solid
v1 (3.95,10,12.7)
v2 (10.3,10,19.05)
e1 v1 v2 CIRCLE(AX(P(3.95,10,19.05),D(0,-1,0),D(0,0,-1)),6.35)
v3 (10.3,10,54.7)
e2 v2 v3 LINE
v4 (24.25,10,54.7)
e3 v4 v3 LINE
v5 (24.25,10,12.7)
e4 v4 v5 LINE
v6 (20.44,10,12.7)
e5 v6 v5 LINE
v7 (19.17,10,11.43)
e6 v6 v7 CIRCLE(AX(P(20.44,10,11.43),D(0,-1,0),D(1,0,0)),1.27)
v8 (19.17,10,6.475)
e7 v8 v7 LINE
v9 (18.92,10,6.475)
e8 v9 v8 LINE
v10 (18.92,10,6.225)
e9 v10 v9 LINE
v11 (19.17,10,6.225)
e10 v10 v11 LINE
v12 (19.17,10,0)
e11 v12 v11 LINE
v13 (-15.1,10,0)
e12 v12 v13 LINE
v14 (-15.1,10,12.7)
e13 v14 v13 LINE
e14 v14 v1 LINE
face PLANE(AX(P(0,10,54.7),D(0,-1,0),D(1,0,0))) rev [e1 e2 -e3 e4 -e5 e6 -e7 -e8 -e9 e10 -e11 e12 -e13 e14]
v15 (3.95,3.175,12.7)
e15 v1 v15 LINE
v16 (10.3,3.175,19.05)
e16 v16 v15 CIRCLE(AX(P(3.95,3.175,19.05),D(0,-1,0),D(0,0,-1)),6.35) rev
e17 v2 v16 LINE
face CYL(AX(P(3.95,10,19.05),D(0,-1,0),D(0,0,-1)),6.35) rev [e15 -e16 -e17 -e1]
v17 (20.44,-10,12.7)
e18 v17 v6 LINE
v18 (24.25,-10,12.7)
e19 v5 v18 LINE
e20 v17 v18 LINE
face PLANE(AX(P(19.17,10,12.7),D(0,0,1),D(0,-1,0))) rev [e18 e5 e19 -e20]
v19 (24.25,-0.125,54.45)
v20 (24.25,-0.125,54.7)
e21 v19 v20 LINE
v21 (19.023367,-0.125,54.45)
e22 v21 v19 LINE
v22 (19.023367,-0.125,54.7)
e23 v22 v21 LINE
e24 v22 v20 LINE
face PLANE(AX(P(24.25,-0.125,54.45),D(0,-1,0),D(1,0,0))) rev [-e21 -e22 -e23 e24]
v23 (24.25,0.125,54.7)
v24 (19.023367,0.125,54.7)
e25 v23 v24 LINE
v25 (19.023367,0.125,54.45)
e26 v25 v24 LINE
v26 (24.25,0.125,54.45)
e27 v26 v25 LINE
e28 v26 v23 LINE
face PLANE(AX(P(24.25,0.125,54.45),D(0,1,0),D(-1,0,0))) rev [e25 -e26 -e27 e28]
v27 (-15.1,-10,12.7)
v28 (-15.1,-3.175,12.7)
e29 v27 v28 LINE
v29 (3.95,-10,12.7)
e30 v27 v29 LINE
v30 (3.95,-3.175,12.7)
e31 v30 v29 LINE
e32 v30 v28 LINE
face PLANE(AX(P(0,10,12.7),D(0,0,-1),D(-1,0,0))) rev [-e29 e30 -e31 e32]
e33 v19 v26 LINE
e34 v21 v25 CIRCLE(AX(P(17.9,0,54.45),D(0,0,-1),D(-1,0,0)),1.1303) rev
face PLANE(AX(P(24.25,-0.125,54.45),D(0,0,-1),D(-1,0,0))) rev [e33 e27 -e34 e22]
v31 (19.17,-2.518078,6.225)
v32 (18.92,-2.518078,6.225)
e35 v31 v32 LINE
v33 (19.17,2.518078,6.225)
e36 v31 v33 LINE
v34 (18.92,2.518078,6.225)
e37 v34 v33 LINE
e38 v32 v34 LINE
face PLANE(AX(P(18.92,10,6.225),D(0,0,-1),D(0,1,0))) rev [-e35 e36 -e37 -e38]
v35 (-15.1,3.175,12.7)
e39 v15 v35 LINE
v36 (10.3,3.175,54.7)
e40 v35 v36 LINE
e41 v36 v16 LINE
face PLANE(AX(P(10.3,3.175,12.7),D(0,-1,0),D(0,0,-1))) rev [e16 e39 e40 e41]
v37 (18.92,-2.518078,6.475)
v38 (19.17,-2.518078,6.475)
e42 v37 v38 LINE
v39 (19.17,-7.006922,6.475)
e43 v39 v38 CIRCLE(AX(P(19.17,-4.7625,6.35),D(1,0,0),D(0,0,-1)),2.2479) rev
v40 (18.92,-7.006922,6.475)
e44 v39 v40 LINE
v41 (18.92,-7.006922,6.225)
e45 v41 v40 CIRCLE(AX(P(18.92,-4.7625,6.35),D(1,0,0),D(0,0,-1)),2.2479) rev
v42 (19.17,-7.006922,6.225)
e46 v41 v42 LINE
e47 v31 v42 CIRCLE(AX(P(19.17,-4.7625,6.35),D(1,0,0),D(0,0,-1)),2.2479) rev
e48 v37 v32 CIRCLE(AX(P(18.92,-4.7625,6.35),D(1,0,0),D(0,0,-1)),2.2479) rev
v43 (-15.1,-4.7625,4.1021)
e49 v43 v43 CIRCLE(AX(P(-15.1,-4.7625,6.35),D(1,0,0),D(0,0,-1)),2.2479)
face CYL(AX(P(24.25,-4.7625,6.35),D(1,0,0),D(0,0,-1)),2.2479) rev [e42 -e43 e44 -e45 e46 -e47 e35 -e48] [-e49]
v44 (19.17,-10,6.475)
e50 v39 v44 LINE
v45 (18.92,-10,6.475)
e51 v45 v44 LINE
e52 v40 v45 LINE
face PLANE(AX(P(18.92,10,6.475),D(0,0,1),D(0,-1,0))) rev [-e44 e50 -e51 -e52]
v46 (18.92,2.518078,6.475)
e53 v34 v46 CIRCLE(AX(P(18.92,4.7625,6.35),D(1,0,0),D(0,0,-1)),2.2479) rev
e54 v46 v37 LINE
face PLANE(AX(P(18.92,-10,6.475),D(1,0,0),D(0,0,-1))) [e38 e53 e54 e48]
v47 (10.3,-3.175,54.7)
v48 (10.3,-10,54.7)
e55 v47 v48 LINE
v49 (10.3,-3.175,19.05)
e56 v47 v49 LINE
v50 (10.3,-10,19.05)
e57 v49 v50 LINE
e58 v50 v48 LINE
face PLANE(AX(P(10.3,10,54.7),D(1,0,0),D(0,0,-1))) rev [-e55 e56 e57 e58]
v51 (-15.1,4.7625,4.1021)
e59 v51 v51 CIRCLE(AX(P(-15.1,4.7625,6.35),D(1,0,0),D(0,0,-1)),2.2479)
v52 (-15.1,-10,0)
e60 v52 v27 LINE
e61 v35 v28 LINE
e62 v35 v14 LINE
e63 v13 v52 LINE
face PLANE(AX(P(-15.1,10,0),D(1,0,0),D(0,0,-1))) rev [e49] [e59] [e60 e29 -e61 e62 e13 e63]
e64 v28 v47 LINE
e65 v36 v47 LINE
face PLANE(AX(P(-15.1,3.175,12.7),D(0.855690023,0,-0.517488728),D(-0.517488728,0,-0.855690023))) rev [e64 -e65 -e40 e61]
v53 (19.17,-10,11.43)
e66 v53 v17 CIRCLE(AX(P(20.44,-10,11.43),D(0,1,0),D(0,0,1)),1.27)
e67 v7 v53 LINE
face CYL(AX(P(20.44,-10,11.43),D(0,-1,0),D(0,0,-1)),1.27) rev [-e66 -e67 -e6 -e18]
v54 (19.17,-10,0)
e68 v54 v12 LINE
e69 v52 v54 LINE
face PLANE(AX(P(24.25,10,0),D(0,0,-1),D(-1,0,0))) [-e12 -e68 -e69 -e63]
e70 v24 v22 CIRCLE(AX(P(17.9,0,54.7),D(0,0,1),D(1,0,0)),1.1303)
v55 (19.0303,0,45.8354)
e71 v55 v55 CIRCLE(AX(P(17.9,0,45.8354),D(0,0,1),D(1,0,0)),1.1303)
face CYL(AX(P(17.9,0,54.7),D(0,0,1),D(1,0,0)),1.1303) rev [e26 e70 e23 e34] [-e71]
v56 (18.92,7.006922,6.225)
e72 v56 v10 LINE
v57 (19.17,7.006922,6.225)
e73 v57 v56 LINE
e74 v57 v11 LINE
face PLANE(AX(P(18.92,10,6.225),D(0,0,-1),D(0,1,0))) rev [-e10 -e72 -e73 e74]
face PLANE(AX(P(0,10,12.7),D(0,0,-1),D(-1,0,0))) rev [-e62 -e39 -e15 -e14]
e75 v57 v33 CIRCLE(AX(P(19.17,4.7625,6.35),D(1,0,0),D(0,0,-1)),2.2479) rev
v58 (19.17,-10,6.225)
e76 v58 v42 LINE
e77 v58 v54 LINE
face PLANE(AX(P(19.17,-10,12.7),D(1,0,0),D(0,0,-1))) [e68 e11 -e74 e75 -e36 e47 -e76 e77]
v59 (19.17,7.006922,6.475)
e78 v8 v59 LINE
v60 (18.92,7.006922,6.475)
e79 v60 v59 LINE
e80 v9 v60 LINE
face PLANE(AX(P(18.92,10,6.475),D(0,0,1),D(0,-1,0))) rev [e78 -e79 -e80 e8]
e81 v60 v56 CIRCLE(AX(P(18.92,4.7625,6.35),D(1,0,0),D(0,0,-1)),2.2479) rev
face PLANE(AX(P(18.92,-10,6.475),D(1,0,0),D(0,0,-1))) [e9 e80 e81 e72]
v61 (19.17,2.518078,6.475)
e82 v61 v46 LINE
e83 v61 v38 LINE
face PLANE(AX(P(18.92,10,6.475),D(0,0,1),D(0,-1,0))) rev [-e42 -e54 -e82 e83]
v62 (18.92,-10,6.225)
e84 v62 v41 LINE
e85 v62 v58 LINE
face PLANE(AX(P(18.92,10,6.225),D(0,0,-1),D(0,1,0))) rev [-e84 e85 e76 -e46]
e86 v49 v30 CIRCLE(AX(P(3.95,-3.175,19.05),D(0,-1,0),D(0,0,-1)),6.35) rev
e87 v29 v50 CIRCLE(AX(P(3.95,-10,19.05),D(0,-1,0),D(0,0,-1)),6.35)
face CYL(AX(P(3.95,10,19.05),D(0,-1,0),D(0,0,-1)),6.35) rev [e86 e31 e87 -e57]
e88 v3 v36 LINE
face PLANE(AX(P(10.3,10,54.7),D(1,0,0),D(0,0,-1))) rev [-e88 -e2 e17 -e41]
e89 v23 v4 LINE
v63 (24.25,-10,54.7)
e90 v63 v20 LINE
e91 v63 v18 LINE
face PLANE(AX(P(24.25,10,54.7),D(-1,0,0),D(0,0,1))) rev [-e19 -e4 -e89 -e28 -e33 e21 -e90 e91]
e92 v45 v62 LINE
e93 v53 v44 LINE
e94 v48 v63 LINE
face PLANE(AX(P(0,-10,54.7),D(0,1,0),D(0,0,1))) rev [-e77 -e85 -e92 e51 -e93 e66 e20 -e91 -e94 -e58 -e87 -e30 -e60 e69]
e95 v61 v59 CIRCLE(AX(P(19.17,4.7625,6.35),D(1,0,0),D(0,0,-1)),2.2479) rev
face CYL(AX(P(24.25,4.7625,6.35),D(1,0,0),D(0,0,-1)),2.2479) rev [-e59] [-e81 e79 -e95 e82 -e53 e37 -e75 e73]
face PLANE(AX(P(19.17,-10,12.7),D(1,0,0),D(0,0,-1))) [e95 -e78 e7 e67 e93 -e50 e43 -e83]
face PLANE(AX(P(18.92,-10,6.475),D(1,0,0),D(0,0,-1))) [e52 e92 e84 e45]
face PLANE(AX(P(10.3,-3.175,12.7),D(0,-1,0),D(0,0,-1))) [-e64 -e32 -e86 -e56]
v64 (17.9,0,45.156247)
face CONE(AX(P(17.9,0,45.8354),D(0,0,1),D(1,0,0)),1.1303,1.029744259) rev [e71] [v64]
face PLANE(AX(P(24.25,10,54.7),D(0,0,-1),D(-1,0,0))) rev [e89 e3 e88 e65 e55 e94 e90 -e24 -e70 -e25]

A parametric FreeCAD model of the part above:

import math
import FreeCAD as App
import Part
import Sketcher
Q = App.Units.Quantity


def edges_at(feature, points):
    """Names of the edges that pass closest to the given points."""
    edges = feature.Shape.Edges
    near = lambda p: min(range(len(edges)), key=lambda i: edges[i].distToShape(Part.Vertex(*p))[0])
    return sorted({f"Edge{near(p) + 1}" for p in points})

doc = App.newDocument("Part")
body = doc.addObject("PartDesign::Body", "Body")

# Sketch on XY plane
sketch1 = body.newObject("Sketcher::SketchObject", "Sketch")
sketch1.AttachmentSupport = (doc.getObject("XY_Plane"), [""])
sketch1.MapMode = "FlatFace"
sketch1.addGeometry(Part.LineSegment(App.Vector(0, 10, 0), App.Vector(0, -10, 0)), False)
sketch1.addGeometry(Part.LineSegment(App.Vector(0, -10, 0), App.Vector(24, -10, 0)), False)
sketch1.addGeometry(Part.LineSegment(App.Vector(24, -10, 0), App.Vector(24, 10, 0)), False)
sketch1.addGeometry(Part.LineSegment(App.Vector(24, 10, 0), App.Vector(0, 10, 0)), False)
sketch1.addConstraint(Sketcher.Constraint("Coincident", 0, 2, 1, 1))
sketch1.addConstraint(Sketcher.Constraint("Coincident", 1, 2, 2, 1))
sketch1.addConstraint(Sketcher.Constraint("Coincident", 2, 2, 3, 1))
sketch1.addConstraint(Sketcher.Constraint("Coincident", 3, 2, 0, 1))
sketch1.addConstraint(Sketcher.Constraint("Vertical", 0))
sketch1.addConstraint(Sketcher.Constraint("Horizontal", 1))
sketch1.addConstraint(Sketcher.Constraint("Vertical", 2))
sketch1.addConstraint(Sketcher.Constraint("Horizontal", 3))
sketch1.addConstraint(Sketcher.Constraint("Symmetric", 0, 2, 3, 2, -1, 1))
sketch1.addConstraint(Sketcher.Constraint("DistanceX", 1, 1, 1, 2, Q("24.25 mm")))
sketch1.addConstraint(Sketcher.Constraint("DistanceY", 0, 2, 0, 1, Q("20 mm")))
pad1 = body.newObject("PartDesign::Pad", "Pad")
pad1.Profile = sketch1
pad1.Length = 54.7

# Sketch on XZ plane
sketch2 = body.newObject("Sketcher::SketchObject", "Sketch001")
sketch2.AttachmentSupport = (doc.getObject("XZ_Plane"), [""])
sketch2.MapMode = "FlatFace"
sketch2.AttachmentOffset = App.Placement(App.Vector(0, 0, 10), App.Rotation())
sketch2.addGeometry(Part.LineSegment(App.Vector(0, 12.7, 0), App.Vector(4, 12.7, 0)), False)
sketch2.addGeometry(Part.ArcOfCircle(Part.Circle(App.Vector(4, 19, 0), App.Vector(0, 0, 1), 6.3), math.radians(-90), math.radians(0)), False)
sketch2.addGeometry(Part.LineSegment(App.Vector(10.3, 19.1, 0), App.Vector(10.3, 54.7, 0)), False)
sketch2.addGeometry(Part.LineSegment(App.Vector(10.3, 54.7, 0), App.Vector(0, 54.7, 0)), False)
sketch2.addGeometry(Part.LineSegment(App.Vector(0, 54.7, 0), App.Vector(0, 12.7, 0)), False)
sketch2.addConstraint(Sketcher.Constraint("Tangent", 0, 2, 1, 1))
sketch2.addConstraint(Sketcher.Constraint("Tangent", 1, 2, 2, 1))
sketch2.addConstraint(Sketcher.Constraint("Coincident", 2, 2, 3, 1))
sketch2.addConstraint(Sketcher.Constraint("Coincident", 3, 2, 4, 1))
sketch2.addConstraint(Sketcher.Constraint("Coincident", 4, 2, 0, 1))
sketch2.addConstraint(Sketcher.Constraint("Horizontal", 0))
sketch2.addConstraint(Sketcher.Constraint("Vertical", 2))
sketch2.addConstraint(Sketcher.Constraint("Horizontal", 3))
sketch2.addConstraint(Sketcher.Constraint("Vertical", 4))
sketch2.addConstraint(Sketcher.Constraint("PointOnObject", 3, 2, -2))
sketch2.addConstraint(Sketcher.Constraint("Radius", 1, Q("0.25 in")))
sketch2.addConstraint(Sketcher.Constraint("DistanceY", -1, 1, 0, 2, Q("0.5 in")))
sketch2.addConstraint(Sketcher.Constraint("DistanceX", 0, 1, 0, 2, Q("3.95 mm")))
sketch2.addConstraint(Sketcher.Constraint("DistanceY", 2, 1, 2, 2, Q("35.65 mm")))
pocket1 = body.newObject("PartDesign::Pocket", "Pocket")
pocket1.Profile = sketch2
pocket1.Type = "ThroughAll"

# Sketch on YZ plane
sketch3 = body.newObject("Sketcher::SketchObject", "Sketch002")
sketch3.AttachmentSupport = (doc.getObject("YZ_Plane"), [""])
sketch3.MapMode = "FlatFace"
sketch3.addGeometry(Part.LineSegment(App.Vector(10, 0, 0), App.Vector(-10, 0, 0)), False)
sketch3.addGeometry(Part.LineSegment(App.Vector(-10, 0, 0), App.Vector(-10, 13, 0)), False)
sketch3.addGeometry(Part.LineSegment(App.Vector(-10, 13, 0), App.Vector(10, 13, 0)), False)
sketch3.addGeometry(Part.LineSegment(App.Vector(10, 13, 0), App.Vector(10, 0, 0)), False)
sketch3.addConstraint(Sketcher.Constraint("Coincident", 0, 2, 1, 1))
sketch3.addConstraint(Sketcher.Constraint("Coincident", 1, 2, 2, 1))
sketch3.addConstraint(Sketcher.Constraint("Coincident", 2, 2, 3, 1))
sketch3.addConstraint(Sketcher.Constraint("Coincident", 3, 2, 0, 1))
sketch3.addConstraint(Sketcher.Constraint("Horizontal", 0))
sketch3.addConstraint(Sketcher.Constraint("Vertical", 1))
sketch3.addConstraint(Sketcher.Constraint("Horizontal", 2))
sketch3.addConstraint(Sketcher.Constraint("Vertical", 3))
sketch3.addConstraint(Sketcher.Constraint("Symmetric", 0, 2, 3, 2, -1, 1))
sketch3.addConstraint(Sketcher.Constraint("DistanceY", 1, 1, 1, 2, Q("0.5 in")))
sketch3.addConstraint(Sketcher.Constraint("DistanceX", 0, 2, 0, 1, Q("20 mm")))
pad2 = body.newObject("PartDesign::Pad", "Pad001")
pad2.Profile = sketch3
pad2.Length = 15.1
pad2.Reversed = True

# Sketch on YZ plane
sketch4 = body.newObject("Sketcher::SketchObject", "Sketch003")
sketch4.AttachmentSupport = (doc.getObject("YZ_Plane"), [""])
sketch4.MapMode = "FlatFace"
sketch4.AttachmentOffset = App.Placement(App.Vector(0, 0, 24.25), App.Rotation())
sketch4.addGeometry(Part.Circle(App.Vector(4.8, 6.3, 0), App.Vector(0, 0, 1), 2.2), False)
sketch4.addGeometry(Part.Circle(App.Vector(-4.8, 6.3, 0), App.Vector(0, 0, 1), 2.2), False)
sketch4.addConstraint(Sketcher.Constraint("Equal", 0, 1))
sketch4.addConstraint(Sketcher.Constraint("Symmetric", 0, 3, 1, 3, -2))
sketch4.addConstraint(Sketcher.Constraint("Diameter", 0, Q("0.177 in")))
sketch4.addConstraint(Sketcher.Constraint("DistanceY", -1, 1, 0, 3, Q("0.25 in")))
sketch4.addConstraint(Sketcher.Constraint("DistanceX", -1, 1, 0, 3, Q("0.1875 in")))
doc.recompute()
hole = body.newObject("PartDesign::Hole", "Hole")
hole.Profile = sketch4
hole.ThreadType = "None"
hole.Diameter = Q("0.177 in")
hole.DepthType = "ThroughAll"

# Sketch on XY plane
sketch5 = body.newObject("Sketcher::SketchObject", "Sketch004")
sketch5.AttachmentSupport = (doc.getObject("XY_Plane"), [""])
sketch5.MapMode = "FlatFace"
sketch5.AttachmentOffset = App.Placement(App.Vector(0, 0, 54.7), App.Rotation())
sketch5.addGeometry(Part.Circle(App.Vector(17.9, 0, 0), App.Vector(0, 0, 1), 1.1), False)
sketch5.addConstraint(Sketcher.Constraint("PointOnObject", 0, 3, -1))
sketch5.addConstraint(Sketcher.Constraint("Diameter", 0, Q("0.089 in")))
sketch5.addConstraint(Sketcher.Constraint("DistanceX", -1, 1, 0, 3, Q("17.9 mm")))
doc.recompute()
hole2 = body.newObject("PartDesign::Hole", "Hole001")
hole2.Profile = sketch5
hole2.ThreadType = "None"
hole2.Diameter = Q("0.089 in")
hole2.DepthType = "Dimension"
hole2.Depth = Q("0.349 in")
hole2.DrillPoint = "Angled"
hole2.DrillPointAngle = 118

# Sketch on YZ plane
sketch6 = body.newObject("Sketcher::SketchObject", "Sketch005")
sketch6.AttachmentSupport = (doc.getObject("YZ_Plane"), [""])
sketch6.MapMode = "FlatFace"
sketch6.AttachmentOffset = App.Placement(App.Vector(0, 0, 24.25), App.Rotation())
sketch6.addGeometry(Part.LineSegment(App.Vector(10, 13, 0), App.Vector(-10, 13, 0)), False)
sketch6.addGeometry(Part.LineSegment(App.Vector(-10, 13, 0), App.Vector(-10, 0, 0)), False)
sketch6.addGeometry(Part.LineSegment(App.Vector(-10, 0, 0), App.Vector(10, 0, 0)), False)
sketch6.addGeometry(Part.LineSegment(App.Vector(10, 0, 0), App.Vector(10, 13, 0)), False)
sketch6.addConstraint(Sketcher.Constraint("Coincident", 0, 2, 1, 1))
sketch6.addConstraint(Sketcher.Constraint("Coincident", 1, 2, 2, 1))
sketch6.addConstraint(Sketcher.Constraint("Coincident", 2, 2, 3, 1))
sketch6.addConstraint(Sketcher.Constraint("Coincident", 3, 2, 0, 1))
sketch6.addConstraint(Sketcher.Constraint("Horizontal", 0))
sketch6.addConstraint(Sketcher.Constraint("Vertical", 1))
sketch6.addConstraint(Sketcher.Constraint("Horizontal", 2))
sketch6.addConstraint(Sketcher.Constraint("Vertical", 3))
sketch6.addConstraint(Sketcher.Constraint("Symmetric", 1, 2, 2, 2, -1, 1))
sketch6.addConstraint(Sketcher.Constraint("DistanceY", 1, 2, 1, 1, Q("0.5 in")))
sketch6.addConstraint(Sketcher.Constraint("DistanceX", 0, 2, 0, 1, Q("20 mm")))
pocket2 = body.newObject("PartDesign::Pocket", "Pocket001")
pocket2.Profile = sketch6
pocket2.Length = Q("0.2 in")
doc.recompute()

fillet = body.newObject("PartDesign::Fillet", "Fillet")
fillet.Base = (pocket2, edges_at(pocket2, [(19.17, 0, 12.7)]))
fillet.Radius = Q("0.05 in")

# Sketch on YZ plane
sketch7 = body.newObject("Sketcher::SketchObject", "Sketch006")
sketch7.AttachmentSupport = (doc.getObject("YZ_Plane"), [""])
sketch7.MapMode = "FlatFace"
sketch7.AttachmentOffset = App.Placement(App.Vector(0, 0, 19.17), App.Rotation())
sketch7.addGeometry(Part.LineSegment(App.Vector(10, 6.47, 0), App.Vector(-10, 6.47, 0)), False)
sketch7.addGeometry(Part.LineSegment(App.Vector(-10, 6.47, 0), App.Vector(-10, 6.22, 0)), False)
sketch7.addGeometry(Part.LineSegment(App.Vector(-10, 6.22, 0), App.Vector(10, 6.22, 0)), False)
sketch7.addGeometry(Part.LineSegment(App.Vector(10, 6.22, 0), App.Vector(10, 6.47, 0)), False)
sketch7.addConstraint(Sketcher.Constraint("Coincident", 0, 2, 1, 1))
sketch7.addConstraint(Sketcher.Constraint("Coincident", 1, 2, 2, 1))
sketch7.addConstraint(Sketcher.Constraint("Coincident", 2, 2, 3, 1))
sketch7.addConstraint(Sketcher.Constraint("Coincident", 3, 2, 0, 1))
sketch7.addConstraint(Sketcher.Constraint("Horizontal", 0))
sketch7.addConstraint(Sketcher.Constraint("Vertical", 1))
sketch7.addConstraint(Sketcher.Constraint("Horizontal", 2))
sketch7.addConstraint(Sketcher.Constraint("Vertical", 3))
sketch7.addConstraint(Sketcher.Constraint("DistanceX", 0, 2, 0, 1, Q("20 mm")))
sketch7.addConstraint(Sketcher.Constraint("DistanceY", 1, 2, 1, 1, Q("0.25 mm")))
sketch7.addConstraint(Sketcher.Constraint("DistanceX", 0, 2, -1, 1, Q("10 mm")))
sketch7.addConstraint(Sketcher.Constraint("DistanceY", -1, 1, 0, 2, Q("6.475 mm")))
pocket3 = body.newObject("PartDesign::Pocket", "Pocket002")
pocket3.Profile = sketch7
pocket3.Length = 0.25

# Sketch on XZ plane
sketch8 = body.newObject("Sketcher::SketchObject", "Sketch007")
sketch8.AttachmentSupport = (doc.getObject("XZ_Plane"), [""])
sketch8.MapMode = "FlatFace"
sketch8.addGeometry(Part.LineSegment(App.Vector(-15, 13, 0), App.Vector(10, 55, 0)), False)
sketch8.addGeometry(Part.LineSegment(App.Vector(10, 55, 0), App.Vector(10, 13, 0)), False)
sketch8.addGeometry(Part.LineSegment(App.Vector(10, 13, 0), App.Vector(-15, 13, 0)), False)
sketch8.addConstraint(Sketcher.Constraint("Coincident", 0, 2, 1, 1))
sketch8.addConstraint(Sketcher.Constraint("Coincident", 1, 2, 2, 1))
sketch8.addConstraint(Sketcher.Constraint("Coincident", 2, 2, 0, 1))
sketch8.addConstraint(Sketcher.Constraint("Vertical", 1))
sketch8.addConstraint(Sketcher.Constraint("Horizontal", 2))
sketch8.addConstraint(Sketcher.Constraint("DistanceX", 2, 2, 2, 1, Q("1 in")))
sketch8.addConstraint(Sketcher.Constraint("DistanceY", -1, 1, 1, 2, Q("0.5 in")))
sketch8.addConstraint(Sketcher.Constraint("DistanceY", 1, 2, 1, 1, Q("42 mm")))
sketch8.addConstraint(Sketcher.Constraint("DistanceX", -1, 1, 0, 2, Q("10.3 mm")))
pad3 = body.newObject("PartDesign::Pad", "Pad002")
pad3.Profile = sketch8
pad3.Length = Q("0.25 in")
pad3.Midplane = True

# Sketch on XY plane
sketch9 = body.newObject("Sketcher::SketchObject", "Sketch008")
sketch9.AttachmentSupport = (doc.getObject("XY_Plane"), [""])
sketch9.MapMode = "FlatFace"
sketch9.AttachmentOffset = App.Placement(App.Vector(0, 0, 54.7), App.Rotation())
sketch9.addGeometry(Part.LineSegment(App.Vector(17.9, 0.12, 0), App.Vector(17.9, -0.12, 0)), False)
sketch9.addGeometry(Part.LineSegment(App.Vector(17.9, -0.12, 0), App.Vector(24.25, -0.12, 0)), False)
sketch9.addGeometry(Part.LineSegment(App.Vector(24.25, -0.12, 0), App.Vector(24.25, 0.12, 0)), False)
sketch9.addGeometry(Part.LineSegment(App.Vector(24.25, 0.12, 0), App.Vector(17.9, 0.12, 0)), False)
sketch9.addConstraint(Sketcher.Constraint("Coincident", 0, 2, 1, 1))
sketch9.addConstraint(Sketcher.Constraint("Coincident", 1, 2, 2, 1))
sketch9.addConstraint(Sketcher.Constraint("Coincident", 2, 2, 3, 1))
sketch9.addConstraint(Sketcher.Constraint("Coincident", 3, 2, 0, 1))
sketch9.addConstraint(Sketcher.Constraint("Vertical", 0))
sketch9.addConstraint(Sketcher.Constraint("Horizontal", 1))
sketch9.addConstraint(Sketcher.Constraint("Vertical", 2))
sketch9.addConstraint(Sketcher.Constraint("Horizontal", 3))
sketch9.addConstraint(Sketcher.Constraint("DistanceX", 1, 1, 1, 2, Q("0.25 in")))
sketch9.addConstraint(Sketcher.Constraint("DistanceY", 0, 2, 0, 1, Q("0.25 mm")))
sketch9.addConstraint(Sketcher.Constraint("DistanceX", -1, 1, 0, 2, Q("17.9 mm")))
sketch9.addConstraint(Sketcher.Constraint("DistanceY", 0, 2, -1, 1, Q("0.125 mm")))
pocket4 = body.newObject("PartDesign::Pocket", "Pocket003")
pocket4.Profile = sketch9
pocket4.Length = 0.25

doc.recompute()
